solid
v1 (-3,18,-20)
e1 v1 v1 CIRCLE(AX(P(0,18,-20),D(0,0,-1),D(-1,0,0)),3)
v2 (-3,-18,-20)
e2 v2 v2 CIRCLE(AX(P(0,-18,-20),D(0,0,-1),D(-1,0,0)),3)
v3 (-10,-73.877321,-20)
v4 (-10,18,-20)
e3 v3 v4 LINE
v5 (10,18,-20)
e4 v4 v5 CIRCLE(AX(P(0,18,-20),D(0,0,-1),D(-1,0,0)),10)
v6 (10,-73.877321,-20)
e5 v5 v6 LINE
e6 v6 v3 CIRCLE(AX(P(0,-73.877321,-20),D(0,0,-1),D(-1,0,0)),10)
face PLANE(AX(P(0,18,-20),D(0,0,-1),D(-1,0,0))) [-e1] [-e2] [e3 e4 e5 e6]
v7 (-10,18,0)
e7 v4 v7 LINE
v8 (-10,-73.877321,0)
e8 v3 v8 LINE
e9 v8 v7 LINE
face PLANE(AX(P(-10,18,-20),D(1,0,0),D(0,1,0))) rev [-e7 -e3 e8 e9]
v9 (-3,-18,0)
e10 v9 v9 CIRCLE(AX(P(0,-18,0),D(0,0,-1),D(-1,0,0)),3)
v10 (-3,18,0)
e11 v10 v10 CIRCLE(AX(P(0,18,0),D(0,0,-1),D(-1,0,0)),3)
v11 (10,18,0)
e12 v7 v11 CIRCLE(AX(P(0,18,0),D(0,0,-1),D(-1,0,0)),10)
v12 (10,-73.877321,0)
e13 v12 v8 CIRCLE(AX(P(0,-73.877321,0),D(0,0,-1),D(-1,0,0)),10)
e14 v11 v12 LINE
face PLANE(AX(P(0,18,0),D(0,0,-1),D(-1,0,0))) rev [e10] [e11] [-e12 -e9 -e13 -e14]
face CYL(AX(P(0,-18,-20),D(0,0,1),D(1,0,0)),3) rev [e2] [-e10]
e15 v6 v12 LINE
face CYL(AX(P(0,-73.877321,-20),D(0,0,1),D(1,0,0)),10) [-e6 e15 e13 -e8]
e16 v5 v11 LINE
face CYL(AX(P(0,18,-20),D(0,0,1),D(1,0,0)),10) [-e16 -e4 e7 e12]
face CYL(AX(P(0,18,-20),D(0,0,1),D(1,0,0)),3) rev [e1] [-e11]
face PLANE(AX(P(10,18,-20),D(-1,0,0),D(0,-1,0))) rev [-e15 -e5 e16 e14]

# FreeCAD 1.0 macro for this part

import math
import FreeCAD as App
import Part
import Sketcher

V = App.Vector

doc = App.newDocument("Part")
body = doc.addObject("PartDesign::Body", "Body")

# Sketch on XY plane
sketch1 = doc.addObject("Sketcher::SketchObject", "Sketch")
body.addObject(sketch1)
sketch1.AttachmentSupport = (doc.XY_Plane, [""])
sketch1.MapMode = "FlatFace"
sketch1.addGeometry(Part.LineSegment(V(-10, -73.9, 0), V(-10, 18, 0)), False)
sketch1.addGeometry(Part.ArcOfCircle(Part.Circle(V(0, 18, 0), V(0, 0, 1), 10), math.radians(0), math.radians(180)), False)
sketch1.addGeometry(Part.LineSegment(V(10, 18, 0), V(10, -73.9, 0)), False)
sketch1.addGeometry(Part.ArcOfCircle(Part.Circle(V(0, -73.9, 0), V(0, 0, 1), 10), math.radians(180), math.radians(360)), False)
sketch1.addGeometry(Part.Circle(V(0, -18, 0), V(0, 0, 1), 3), False)
sketch1.addGeometry(Part.Circle(V(0, 18, 0), V(0, 0, 1), 3), False)
sketch1.addConstraint(Sketcher.Constraint("Tangent", 0, 2, 1, 2))
sketch1.addConstraint(Sketcher.Constraint("Tangent", 1, 1, 2, 1))
sketch1.addConstraint(Sketcher.Constraint("Tangent", 2, 2, 3, 2))
sketch1.addConstraint(Sketcher.Constraint("Tangent", 3, 1, 0, 1))
sketch1.addConstraint(Sketcher.Constraint("Vertical", 0))
sketch1.addConstraint(Sketcher.Constraint("Vertical", 2))
sketch1.addConstraint(Sketcher.Constraint("Coincident", 5, 3, 1, 3))
sketch1.addConstraint(Sketcher.Constraint("Equal", 4, 5))
sketch1.addConstraint(Sketcher.Constraint("Symmetric", 1, 3, 4, 3, -1, 1))
sketch1.addConstraint(Sketcher.Constraint("PointOnObject", 1, 3, -2))
sketch1.addConstraint(Sketcher.Constraint("Diameter", 4, 6.0))
sketch1.addConstraint(Sketcher.Constraint("Radius", 1, 10.0))
sketch1.addConstraint(Sketcher.Constraint("DistanceY", -1, 1, 1, 3, 18.0))
sketch1.addConstraint(Sketcher.Constraint("DistanceY", 0, 1, 0, 2, 91.877321))
pad1 = doc.addObject("PartDesign::Pad", "Pad")
body.addObject(pad1)
pad1.Profile = sketch1
pad1.Length = 20
pad1.Reversed = True

doc.recompute()
